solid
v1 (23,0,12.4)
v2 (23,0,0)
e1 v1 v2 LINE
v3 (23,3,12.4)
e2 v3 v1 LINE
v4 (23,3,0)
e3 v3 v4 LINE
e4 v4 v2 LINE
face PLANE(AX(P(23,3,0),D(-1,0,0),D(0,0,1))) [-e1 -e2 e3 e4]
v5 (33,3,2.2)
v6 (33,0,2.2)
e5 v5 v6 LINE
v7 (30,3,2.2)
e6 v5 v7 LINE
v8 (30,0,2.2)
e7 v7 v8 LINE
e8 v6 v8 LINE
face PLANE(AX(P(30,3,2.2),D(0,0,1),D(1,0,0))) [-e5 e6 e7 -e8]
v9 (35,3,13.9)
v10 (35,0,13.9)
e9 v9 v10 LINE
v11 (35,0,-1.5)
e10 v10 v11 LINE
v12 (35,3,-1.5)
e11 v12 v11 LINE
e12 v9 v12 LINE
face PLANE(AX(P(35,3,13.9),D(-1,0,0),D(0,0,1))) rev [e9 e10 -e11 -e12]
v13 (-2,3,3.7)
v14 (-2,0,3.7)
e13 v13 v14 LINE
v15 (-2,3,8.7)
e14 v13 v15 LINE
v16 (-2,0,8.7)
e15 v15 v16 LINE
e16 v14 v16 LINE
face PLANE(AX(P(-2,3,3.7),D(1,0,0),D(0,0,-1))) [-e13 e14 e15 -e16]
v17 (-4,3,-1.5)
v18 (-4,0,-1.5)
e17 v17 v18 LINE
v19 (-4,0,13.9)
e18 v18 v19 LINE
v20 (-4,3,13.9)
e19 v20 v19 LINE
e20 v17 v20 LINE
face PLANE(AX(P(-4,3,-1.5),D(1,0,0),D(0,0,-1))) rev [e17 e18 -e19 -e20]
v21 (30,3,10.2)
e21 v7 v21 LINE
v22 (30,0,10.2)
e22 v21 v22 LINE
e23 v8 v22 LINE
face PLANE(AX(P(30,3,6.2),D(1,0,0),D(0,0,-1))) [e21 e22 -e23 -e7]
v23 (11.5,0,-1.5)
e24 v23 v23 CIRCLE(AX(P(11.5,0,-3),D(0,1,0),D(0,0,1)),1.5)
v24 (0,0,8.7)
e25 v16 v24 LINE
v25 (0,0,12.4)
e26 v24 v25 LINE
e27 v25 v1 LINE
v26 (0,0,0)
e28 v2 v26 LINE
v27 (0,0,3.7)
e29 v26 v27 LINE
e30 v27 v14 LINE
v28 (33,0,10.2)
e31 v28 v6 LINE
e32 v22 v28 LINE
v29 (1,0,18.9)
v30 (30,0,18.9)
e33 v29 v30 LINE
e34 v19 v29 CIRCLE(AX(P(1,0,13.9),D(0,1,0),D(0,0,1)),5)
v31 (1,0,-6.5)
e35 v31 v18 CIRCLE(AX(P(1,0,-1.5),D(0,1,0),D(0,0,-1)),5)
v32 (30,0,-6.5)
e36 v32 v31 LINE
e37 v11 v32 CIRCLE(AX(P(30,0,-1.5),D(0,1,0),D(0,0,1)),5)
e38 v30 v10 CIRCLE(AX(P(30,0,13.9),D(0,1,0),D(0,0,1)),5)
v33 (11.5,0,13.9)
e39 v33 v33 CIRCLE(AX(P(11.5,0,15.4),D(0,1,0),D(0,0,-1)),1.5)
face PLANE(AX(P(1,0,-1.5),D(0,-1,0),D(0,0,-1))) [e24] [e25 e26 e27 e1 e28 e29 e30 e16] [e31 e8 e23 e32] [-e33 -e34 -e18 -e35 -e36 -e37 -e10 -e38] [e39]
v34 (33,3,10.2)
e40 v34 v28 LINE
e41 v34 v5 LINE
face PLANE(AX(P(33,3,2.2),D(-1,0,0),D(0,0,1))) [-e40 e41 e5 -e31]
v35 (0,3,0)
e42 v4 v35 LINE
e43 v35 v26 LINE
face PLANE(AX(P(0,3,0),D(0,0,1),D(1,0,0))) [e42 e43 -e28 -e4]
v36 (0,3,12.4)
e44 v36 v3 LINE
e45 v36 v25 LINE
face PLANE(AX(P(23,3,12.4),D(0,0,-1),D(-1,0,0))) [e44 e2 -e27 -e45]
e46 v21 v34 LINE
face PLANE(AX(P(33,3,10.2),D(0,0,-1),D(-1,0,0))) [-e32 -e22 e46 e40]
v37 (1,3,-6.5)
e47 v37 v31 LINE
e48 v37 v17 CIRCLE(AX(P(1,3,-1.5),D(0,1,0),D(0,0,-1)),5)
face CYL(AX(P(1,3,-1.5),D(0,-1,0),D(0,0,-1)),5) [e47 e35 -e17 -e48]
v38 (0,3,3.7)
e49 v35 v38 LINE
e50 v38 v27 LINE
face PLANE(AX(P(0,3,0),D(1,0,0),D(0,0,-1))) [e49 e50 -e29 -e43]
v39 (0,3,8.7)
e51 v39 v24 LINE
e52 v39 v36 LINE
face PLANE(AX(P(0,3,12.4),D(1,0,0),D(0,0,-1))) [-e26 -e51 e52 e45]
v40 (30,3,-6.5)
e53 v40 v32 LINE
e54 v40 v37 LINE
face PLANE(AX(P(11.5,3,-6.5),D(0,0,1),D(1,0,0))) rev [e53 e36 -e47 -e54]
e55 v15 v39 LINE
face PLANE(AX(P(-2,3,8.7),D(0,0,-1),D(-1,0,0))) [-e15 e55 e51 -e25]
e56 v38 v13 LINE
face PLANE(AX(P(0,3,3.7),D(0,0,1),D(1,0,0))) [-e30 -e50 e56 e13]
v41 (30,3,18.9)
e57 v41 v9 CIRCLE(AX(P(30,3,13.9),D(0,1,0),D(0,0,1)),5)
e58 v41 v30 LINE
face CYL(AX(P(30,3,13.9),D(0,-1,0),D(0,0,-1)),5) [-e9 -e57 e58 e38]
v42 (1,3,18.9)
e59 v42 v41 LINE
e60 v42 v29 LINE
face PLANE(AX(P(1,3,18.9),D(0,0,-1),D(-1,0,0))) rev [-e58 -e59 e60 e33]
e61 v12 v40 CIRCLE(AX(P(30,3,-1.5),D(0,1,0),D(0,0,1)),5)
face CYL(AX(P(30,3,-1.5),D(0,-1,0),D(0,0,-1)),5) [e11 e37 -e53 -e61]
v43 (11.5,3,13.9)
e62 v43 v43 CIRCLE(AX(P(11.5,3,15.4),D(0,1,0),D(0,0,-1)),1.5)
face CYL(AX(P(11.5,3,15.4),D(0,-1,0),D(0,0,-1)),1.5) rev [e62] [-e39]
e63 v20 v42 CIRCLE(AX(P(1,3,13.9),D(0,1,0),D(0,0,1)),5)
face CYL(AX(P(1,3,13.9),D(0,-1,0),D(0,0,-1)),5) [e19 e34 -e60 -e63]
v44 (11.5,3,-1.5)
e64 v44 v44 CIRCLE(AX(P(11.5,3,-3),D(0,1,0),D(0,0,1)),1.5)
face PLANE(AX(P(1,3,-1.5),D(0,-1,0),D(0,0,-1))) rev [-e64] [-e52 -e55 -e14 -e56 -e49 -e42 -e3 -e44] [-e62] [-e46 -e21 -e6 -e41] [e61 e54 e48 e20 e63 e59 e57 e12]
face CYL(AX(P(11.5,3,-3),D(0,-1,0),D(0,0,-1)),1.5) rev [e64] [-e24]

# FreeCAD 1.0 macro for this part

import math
import FreeCAD as App
import Part
import Sketcher

V = App.Vector
Q = App.Units.Quantity


def add_polygon(sketch, points):
    """Adds a closed chain of lines whose ends are joined by coincident constraints."""
    first, n = sketch.GeometryCount, len(points)
    for a, b in zip(points, points[1:] + points[:1]):
        sketch.addGeometry(Part.LineSegment(App.Vector(*a, 0), App.Vector(*b, 0)), False)
    for i in range(n):
        sketch.addConstraint(Sketcher.Constraint("Coincident", first + i, 2, first + (i + 1) % n, 1))

doc = App.newDocument("Part")
body = doc.addObject("PartDesign::Body", "Body")

# Sketch on XZ plane
sketch1 = body.newObject("Sketcher::SketchObject", "Sketch")
sketch1.AttachmentSupport = (doc.getObject("XZ_Plane"), [""])
sketch1.MapMode = "FlatFace"
sketch1.addGeometry(Part.ArcOfCircle(Part.Circle(V(1, -1.5, 0), V(0, 0, 1), 5), math.radians(180), math.radians(270)), False)  # 0
sketch1.addGeometry(Part.LineSegment(V(-4, -1.5, 0), V(-4, 13.9, 0)), False)  # 1
sketch1.addGeometry(Part.ArcOfCircle(Part.Circle(V(1, 13.9, 0), V(0, 0, 1), 5), math.radians(90), math.radians(180)), False)  # 2
sketch1.addGeometry(Part.LineSegment(V(1, 18.9, 0), V(30, 18.9, 0)), False)  # 3
sketch1.addGeometry(Part.ArcOfCircle(Part.Circle(V(30, 13.9, 0), V(0, 0, 1), 5), math.radians(0), math.radians(90)), False)  # 4
sketch1.addGeometry(Part.LineSegment(V(35, 13.9, 0), V(35, -1.5, 0)), False)  # 5
sketch1.addGeometry(Part.ArcOfCircle(Part.Circle(V(30, -1.5, 0), V(0, 0, 1), 5), math.radians(-90), math.radians(0)), False)  # 6
sketch1.addGeometry(Part.LineSegment(V(30, -6.5, 0), V(1, -6.5, 0)), False)  # 7
sketch1.addGeometry(Part.Circle(V(11.5, 15.4, 0), V(0, 0, 1), 1.5), False)  # 8
add_polygon(sketch1, [(0, 3.7), (0, 0), (23, 0), (23, 12.4), (0, 12.4), (0, 8.7), (-2, 8.7), (-2, 3.7)])  # lines 9-16
sketch1.addGeometry(Part.Circle(V(11.5, -3, 0), V(0, 0, 1), 1.5), False)  # 17
add_polygon(sketch1, [(30, 10.2), (30, 2.2), (33, 2.2), (33, 10.2)])  # lines 18-21
sketch1.addConstraint([
    Sketcher.Constraint("Tangent", 0, 1, 1, 1),
    Sketcher.Constraint("Tangent", 1, 2, 2, 2),
    Sketcher.Constraint("Tangent", 2, 1, 3, 1),
    Sketcher.Constraint("Tangent", 3, 2, 4, 2),
    Sketcher.Constraint("Tangent", 4, 1, 5, 1),
    Sketcher.Constraint("Tangent", 5, 2, 6, 2),
    Sketcher.Constraint("Tangent", 6, 1, 7, 1),
    Sketcher.Constraint("Tangent", 7, 2, 0, 2),
    Sketcher.Constraint("Vertical", 1),
    Sketcher.Constraint("Horizontal", 3),
    Sketcher.Constraint("Vertical", 5),
    Sketcher.Constraint("Horizontal", 7),
    Sketcher.Constraint("Vertical", 9),
    Sketcher.Constraint("Horizontal", 10),
    Sketcher.Constraint("Vertical", 11),
    Sketcher.Constraint("Horizontal", 12),
    Sketcher.Constraint("Vertical", 13),
    Sketcher.Constraint("Horizontal", 14),
    Sketcher.Constraint("Vertical", 15),
    Sketcher.Constraint("Horizontal", 16),
    Sketcher.Constraint("Vertical", 18),
    Sketcher.Constraint("Horizontal", 19),
    Sketcher.Constraint("Vertical", 20),
    Sketcher.Constraint("Horizontal", 21),
    Sketcher.Constraint("Coincident", 9, 2, -1, 1),
    Sketcher.Constraint("Equal", 0, 2),
    Sketcher.Constraint("Equal", 2, 4),
    Sketcher.Constraint("Equal", 4, 6),
    Sketcher.Constraint("Equal", 8, 17),
    Sketcher.Constraint("PointOnObject", 12, 2, -2),
    Sketcher.Constraint("Vertical", 8, 3, 17, 3),
    Sketcher.Constraint("Vertical", 6, 1, 18, 2),
    Sketcher.Constraint("Equal", 9, 13),
    Sketcher.Constraint("Diameter", 8, Q("3 mm")),
    Sketcher.Constraint("Radius", 0, Q("5 mm")),
    Sketcher.Constraint("DistanceX", 3, 1, 3, 2, Q("29 mm")),
    Sketcher.Constraint("DistanceX", 10, 1, 10, 2, Q("23 mm")),
    Sketcher.Constraint("DistanceX", 14, 2, 14, 1, Q("2 mm")),
    Sketcher.Constraint("DistanceX", 19, 1, 19, 2, Q("3 mm")),
    Sketcher.Constraint("DistanceY", 15, 2, 15, 1, Q("5 mm")),
    Sketcher.Constraint("DistanceY", 18, 2, 18, 1, Q("8 mm")),
    Sketcher.Constraint("DistanceY", 1, 1, 1, 2, Q("15.4 mm")),
    Sketcher.Constraint("DistanceY", 9, 2, 9, 1, Q("3.7 mm")),
    Sketcher.Constraint("DistanceX", -1, 1, 0, 3, Q("1 mm")),
    Sketcher.Constraint("DistanceY", 17, 3, -1, 1, Q("3 mm")),
    Sketcher.Constraint("DistanceY", 11, 2, 8, 3, Q("3 mm")),
    Sketcher.Constraint("DistanceY", 0, 3, -1, 1, Q("1.5 mm")),
    Sketcher.Constraint("DistanceX", -1, 1, 8, 3, Q("11.5 mm")),
    Sketcher.Constraint("DistanceY", -1, 1, 18, 2, Q("2.2 mm")),
])
pad1 = body.newObject("PartDesign::Pad", "Pad")
pad1.Profile = sketch1
pad1.Length = 3
pad1.Reversed = True

doc.recompute()
